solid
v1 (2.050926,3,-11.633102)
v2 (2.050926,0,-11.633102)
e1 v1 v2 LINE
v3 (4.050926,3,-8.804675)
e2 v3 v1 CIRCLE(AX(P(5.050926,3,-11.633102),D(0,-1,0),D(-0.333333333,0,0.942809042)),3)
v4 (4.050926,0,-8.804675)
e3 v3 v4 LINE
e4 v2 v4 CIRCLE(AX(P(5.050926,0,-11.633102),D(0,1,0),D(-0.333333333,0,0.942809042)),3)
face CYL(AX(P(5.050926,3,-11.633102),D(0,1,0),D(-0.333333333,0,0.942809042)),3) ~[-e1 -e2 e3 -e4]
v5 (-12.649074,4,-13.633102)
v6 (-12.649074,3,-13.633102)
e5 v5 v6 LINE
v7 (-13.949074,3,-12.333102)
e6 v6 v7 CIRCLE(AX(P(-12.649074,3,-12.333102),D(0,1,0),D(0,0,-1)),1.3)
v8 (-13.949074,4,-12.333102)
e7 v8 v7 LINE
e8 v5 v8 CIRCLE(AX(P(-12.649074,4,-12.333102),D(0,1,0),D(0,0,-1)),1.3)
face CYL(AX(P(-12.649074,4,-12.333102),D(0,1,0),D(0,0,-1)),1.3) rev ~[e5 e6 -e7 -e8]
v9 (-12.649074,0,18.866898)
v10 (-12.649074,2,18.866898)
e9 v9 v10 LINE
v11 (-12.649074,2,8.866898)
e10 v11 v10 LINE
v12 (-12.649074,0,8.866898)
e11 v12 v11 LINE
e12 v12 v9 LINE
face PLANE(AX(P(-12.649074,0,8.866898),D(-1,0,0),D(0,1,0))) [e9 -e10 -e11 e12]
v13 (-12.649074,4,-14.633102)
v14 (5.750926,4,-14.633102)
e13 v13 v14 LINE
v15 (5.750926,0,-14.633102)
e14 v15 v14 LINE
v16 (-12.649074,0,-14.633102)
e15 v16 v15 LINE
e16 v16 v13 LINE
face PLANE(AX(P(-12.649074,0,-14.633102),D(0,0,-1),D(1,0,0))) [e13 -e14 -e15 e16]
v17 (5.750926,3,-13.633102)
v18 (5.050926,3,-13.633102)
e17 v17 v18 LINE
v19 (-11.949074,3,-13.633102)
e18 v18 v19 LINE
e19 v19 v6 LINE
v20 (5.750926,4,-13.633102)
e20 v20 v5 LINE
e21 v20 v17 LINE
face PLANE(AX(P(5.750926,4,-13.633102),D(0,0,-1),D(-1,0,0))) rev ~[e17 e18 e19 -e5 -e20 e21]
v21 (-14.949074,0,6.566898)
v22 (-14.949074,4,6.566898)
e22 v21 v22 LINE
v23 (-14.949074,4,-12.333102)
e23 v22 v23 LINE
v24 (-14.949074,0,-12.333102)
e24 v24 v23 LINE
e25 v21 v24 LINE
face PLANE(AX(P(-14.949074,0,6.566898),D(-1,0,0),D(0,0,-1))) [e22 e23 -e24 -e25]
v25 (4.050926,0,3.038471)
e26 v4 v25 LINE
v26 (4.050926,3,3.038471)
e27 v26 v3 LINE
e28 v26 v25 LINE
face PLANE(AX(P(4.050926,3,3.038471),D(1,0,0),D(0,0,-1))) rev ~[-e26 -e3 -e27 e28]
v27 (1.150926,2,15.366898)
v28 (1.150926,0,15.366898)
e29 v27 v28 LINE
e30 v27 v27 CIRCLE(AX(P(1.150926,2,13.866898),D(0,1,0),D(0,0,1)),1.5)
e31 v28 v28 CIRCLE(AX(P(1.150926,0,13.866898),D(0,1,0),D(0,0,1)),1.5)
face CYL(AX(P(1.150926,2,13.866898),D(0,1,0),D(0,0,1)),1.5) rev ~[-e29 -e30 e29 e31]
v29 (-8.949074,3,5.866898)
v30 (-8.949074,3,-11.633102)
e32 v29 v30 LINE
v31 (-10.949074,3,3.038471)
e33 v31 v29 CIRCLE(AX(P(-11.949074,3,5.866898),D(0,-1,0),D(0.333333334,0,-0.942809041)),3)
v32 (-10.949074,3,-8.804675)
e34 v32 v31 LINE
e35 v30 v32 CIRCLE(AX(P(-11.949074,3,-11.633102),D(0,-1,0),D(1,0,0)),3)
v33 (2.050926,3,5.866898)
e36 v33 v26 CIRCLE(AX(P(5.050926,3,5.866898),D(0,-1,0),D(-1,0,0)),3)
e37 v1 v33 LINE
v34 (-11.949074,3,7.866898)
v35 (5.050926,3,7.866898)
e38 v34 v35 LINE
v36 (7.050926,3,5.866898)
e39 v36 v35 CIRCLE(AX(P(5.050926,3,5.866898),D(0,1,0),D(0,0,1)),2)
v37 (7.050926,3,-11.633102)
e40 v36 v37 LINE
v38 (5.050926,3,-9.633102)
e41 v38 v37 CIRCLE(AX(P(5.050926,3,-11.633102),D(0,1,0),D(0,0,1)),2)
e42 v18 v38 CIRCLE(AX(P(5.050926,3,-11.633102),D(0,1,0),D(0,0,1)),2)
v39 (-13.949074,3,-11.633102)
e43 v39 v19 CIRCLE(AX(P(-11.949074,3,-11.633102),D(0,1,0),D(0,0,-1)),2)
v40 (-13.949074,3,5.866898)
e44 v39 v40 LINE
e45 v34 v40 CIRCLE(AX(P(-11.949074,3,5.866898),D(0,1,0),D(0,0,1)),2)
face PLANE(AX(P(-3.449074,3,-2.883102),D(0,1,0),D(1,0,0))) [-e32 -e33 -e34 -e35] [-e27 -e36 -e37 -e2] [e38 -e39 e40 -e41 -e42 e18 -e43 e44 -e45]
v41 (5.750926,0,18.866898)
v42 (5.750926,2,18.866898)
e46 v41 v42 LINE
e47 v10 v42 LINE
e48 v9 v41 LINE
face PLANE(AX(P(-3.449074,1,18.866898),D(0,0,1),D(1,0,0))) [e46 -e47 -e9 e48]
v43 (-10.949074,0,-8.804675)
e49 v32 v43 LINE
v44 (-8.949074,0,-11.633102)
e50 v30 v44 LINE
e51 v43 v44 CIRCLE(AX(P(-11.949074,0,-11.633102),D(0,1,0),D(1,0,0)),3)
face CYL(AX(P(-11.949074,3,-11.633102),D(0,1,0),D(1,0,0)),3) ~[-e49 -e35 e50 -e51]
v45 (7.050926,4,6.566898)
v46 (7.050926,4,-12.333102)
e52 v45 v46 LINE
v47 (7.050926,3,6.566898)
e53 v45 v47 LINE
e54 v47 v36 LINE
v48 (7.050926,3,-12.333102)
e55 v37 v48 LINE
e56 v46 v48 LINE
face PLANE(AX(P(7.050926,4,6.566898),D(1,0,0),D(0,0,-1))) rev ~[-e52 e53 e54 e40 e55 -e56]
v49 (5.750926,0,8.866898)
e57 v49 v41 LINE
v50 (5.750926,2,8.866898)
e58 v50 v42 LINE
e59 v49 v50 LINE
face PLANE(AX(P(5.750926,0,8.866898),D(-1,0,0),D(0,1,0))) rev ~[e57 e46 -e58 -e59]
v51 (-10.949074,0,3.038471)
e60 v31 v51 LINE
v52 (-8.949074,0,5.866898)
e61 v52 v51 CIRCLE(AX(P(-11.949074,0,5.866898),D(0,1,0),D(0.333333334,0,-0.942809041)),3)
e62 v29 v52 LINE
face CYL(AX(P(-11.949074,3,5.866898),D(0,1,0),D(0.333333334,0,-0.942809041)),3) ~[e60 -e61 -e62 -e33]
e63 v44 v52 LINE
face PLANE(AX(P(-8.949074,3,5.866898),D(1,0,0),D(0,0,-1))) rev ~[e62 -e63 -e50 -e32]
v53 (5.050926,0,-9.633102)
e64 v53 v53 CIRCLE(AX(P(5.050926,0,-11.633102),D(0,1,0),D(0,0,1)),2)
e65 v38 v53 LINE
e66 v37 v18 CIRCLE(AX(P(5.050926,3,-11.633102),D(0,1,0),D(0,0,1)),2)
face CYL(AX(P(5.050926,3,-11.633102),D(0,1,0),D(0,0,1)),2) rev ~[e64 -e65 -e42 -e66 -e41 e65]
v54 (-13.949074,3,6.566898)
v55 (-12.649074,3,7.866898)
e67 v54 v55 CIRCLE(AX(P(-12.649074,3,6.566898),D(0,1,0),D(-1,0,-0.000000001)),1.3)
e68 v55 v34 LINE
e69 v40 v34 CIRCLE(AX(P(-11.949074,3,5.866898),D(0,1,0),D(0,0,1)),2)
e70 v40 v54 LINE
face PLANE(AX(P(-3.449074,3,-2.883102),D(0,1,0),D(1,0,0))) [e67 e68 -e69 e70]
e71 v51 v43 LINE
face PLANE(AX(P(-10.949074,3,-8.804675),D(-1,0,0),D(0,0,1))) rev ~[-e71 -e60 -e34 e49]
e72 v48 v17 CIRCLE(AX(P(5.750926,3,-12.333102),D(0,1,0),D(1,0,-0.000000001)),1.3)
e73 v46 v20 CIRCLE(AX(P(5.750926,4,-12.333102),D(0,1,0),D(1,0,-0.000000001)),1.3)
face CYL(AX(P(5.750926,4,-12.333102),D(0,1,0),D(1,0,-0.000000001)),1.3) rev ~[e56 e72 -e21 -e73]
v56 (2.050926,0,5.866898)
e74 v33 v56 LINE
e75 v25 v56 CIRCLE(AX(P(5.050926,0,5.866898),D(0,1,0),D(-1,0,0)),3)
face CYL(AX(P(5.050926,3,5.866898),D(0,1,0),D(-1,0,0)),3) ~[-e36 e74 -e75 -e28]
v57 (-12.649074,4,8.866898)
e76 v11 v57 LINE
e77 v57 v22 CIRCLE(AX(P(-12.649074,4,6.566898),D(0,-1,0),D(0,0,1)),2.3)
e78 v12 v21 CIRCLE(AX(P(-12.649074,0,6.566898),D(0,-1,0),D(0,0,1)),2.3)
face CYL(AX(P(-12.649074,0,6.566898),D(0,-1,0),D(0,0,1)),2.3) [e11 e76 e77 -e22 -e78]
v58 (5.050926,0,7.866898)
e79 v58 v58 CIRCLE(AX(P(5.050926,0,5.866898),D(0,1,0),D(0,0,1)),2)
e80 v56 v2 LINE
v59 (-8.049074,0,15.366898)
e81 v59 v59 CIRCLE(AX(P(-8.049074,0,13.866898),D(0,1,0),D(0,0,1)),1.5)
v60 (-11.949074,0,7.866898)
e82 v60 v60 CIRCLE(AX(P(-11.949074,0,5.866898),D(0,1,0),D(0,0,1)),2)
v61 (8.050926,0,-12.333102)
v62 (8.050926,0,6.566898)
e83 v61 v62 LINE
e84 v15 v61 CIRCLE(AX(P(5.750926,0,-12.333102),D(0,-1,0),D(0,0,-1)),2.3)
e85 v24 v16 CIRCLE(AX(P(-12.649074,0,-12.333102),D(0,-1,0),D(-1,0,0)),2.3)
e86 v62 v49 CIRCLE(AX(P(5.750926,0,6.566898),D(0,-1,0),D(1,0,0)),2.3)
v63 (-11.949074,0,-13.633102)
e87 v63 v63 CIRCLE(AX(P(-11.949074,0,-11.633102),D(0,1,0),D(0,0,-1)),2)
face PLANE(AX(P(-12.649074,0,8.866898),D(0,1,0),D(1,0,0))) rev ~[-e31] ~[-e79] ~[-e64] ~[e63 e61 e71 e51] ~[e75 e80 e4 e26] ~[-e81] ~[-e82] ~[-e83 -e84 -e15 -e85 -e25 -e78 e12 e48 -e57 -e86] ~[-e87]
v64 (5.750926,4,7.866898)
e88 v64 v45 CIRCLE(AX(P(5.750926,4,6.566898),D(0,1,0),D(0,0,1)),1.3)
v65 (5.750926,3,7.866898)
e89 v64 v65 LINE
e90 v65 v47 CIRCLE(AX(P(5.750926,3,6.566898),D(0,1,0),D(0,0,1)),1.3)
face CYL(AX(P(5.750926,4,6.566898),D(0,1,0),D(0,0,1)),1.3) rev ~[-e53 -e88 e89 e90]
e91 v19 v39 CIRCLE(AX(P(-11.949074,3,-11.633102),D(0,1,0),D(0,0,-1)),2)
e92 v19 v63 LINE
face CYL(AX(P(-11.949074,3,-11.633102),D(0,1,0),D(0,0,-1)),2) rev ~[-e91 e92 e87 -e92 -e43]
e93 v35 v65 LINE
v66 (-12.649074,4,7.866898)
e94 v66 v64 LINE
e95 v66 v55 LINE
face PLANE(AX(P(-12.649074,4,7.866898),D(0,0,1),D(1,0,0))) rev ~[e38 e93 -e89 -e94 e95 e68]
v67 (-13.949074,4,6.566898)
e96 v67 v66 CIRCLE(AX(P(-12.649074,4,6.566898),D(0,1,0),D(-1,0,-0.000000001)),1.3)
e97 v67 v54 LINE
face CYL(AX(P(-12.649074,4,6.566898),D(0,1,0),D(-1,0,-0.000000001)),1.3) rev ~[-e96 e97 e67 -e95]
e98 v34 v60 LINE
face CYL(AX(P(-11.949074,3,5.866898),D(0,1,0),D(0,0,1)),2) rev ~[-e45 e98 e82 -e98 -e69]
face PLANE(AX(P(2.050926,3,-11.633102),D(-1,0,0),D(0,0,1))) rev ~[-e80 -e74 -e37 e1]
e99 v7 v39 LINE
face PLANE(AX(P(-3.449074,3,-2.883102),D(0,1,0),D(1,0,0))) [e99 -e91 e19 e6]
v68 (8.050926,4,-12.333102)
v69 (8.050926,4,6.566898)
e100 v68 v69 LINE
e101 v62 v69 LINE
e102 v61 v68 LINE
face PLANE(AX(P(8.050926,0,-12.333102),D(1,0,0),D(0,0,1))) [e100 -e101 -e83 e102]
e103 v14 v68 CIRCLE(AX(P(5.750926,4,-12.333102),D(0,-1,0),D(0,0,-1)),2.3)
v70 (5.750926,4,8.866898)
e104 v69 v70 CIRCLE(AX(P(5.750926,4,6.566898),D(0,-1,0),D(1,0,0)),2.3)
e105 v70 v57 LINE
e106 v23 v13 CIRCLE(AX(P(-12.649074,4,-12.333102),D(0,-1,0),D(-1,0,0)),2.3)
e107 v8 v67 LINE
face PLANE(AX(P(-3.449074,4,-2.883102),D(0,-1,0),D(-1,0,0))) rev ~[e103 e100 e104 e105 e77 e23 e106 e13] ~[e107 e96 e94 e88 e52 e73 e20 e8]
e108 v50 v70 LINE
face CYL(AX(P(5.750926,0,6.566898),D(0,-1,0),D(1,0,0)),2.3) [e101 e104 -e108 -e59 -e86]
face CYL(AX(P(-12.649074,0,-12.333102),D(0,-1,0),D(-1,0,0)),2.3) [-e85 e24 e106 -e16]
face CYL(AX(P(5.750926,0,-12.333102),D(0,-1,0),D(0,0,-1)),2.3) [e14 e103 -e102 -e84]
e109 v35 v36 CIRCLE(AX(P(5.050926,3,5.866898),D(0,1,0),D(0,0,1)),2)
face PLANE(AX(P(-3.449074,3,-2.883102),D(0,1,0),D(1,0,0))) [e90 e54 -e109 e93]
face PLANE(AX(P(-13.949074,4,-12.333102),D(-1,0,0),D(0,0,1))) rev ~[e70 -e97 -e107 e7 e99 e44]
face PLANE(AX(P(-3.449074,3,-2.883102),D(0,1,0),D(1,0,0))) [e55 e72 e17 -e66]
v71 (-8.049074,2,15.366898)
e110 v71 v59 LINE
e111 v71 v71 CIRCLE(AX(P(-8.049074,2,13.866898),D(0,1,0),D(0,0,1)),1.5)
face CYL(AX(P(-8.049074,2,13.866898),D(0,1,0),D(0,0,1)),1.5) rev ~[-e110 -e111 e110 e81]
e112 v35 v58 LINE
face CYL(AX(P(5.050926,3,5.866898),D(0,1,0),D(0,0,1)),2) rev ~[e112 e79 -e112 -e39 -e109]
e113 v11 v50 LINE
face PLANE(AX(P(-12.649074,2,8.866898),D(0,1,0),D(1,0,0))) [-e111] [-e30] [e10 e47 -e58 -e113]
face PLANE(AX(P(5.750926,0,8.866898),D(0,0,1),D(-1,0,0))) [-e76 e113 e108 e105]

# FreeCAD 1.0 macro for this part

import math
import FreeCAD as App
import Part
import Sketcher
Q = App.Units.Quantity

doc = App.newDocument("Part")
body = doc.addObject("PartDesign::Body", "Body")

sketch1 = doc.addObject("Sketcher::SketchObject", "Sketch")
body.addObject(sketch1)
sketch1.AttachmentSupport = (doc.XZ_Plane, [""])
sketch1.MapMode = "FlatFace"
sketch1.addGeometry(Part.LineSegment(App.Vector(5.750926, -14.633102, 0), App.Vector(-12.649074, -14.633102, 0)), False)
sketch1.addGeometry(Part.ArcOfCircle(Part.Circle(App.Vector(-12.649074, -12.333102, 0), App.Vector(0, 0, 1), 2.3), math.radians(180), math.radians(270)), False)
sketch1.addGeometry(Part.LineSegment(App.Vector(-14.949074, -12.333102, 0), App.Vector(-14.949074, 6.566898, 0)), False)
sketch1.addGeometry(Part.ArcOfCircle(Part.Circle(App.Vector(-12.649074, 6.566898, 0), App.Vector(0, 0, 1), 2.3), math.radians(90), math.radians(180)), False)
sketch1.addGeometry(Part.LineSegment(App.Vector(-12.649074, 8.866898, 0), App.Vector(5.750926, 8.866898, 0)), False)
sketch1.addGeometry(Part.ArcOfCircle(Part.Circle(App.Vector(5.750926, 6.566898, 0), App.Vector(0, 0, 1), 2.3), math.radians(0), math.radians(90)), False)
sketch1.addGeometry(Part.LineSegment(App.Vector(8.050926, 6.566898, 0), App.Vector(8.050926, -12.333102, 0)), False)
sketch1.addGeometry(Part.ArcOfCircle(Part.Circle(App.Vector(5.750926, -12.333102, 0), App.Vector(0, 0, 1), 2.3), math.radians(-90), math.radians(0)), False)
sketch1.addConstraint(Sketcher.Constraint("Tangent", 0, 2, 1, 2))
sketch1.addConstraint(Sketcher.Constraint("Tangent", 1, 1, 2, 1))
sketch1.addConstraint(Sketcher.Constraint("Tangent", 2, 2, 3, 2))
sketch1.addConstraint(Sketcher.Constraint("Tangent", 3, 1, 4, 1))
sketch1.addConstraint(Sketcher.Constraint("Tangent", 4, 2, 5, 2))
sketch1.addConstraint(Sketcher.Constraint("Tangent", 5, 1, 6, 1))
sketch1.addConstraint(Sketcher.Constraint("Tangent", 6, 2, 7, 2))
sketch1.addConstraint(Sketcher.Constraint("Tangent", 7, 1, 0, 1))
sketch1.addConstraint(Sketcher.Constraint("Horizontal", 0))
sketch1.addConstraint(Sketcher.Constraint("Vertical", 2))
sketch1.addConstraint(Sketcher.Constraint("Horizontal", 4))
sketch1.addConstraint(Sketcher.Constraint("Vertical", 6))
sketch1.addConstraint(Sketcher.Constraint("Equal", 1, 3))
sketch1.addConstraint(Sketcher.Constraint("Equal", 3, 5))
sketch1.addConstraint(Sketcher.Constraint("Equal", 5, 7))
sketch1.addConstraint(Sketcher.Constraint("Radius", 1, Q("2.3 mm")))
sketch1.addConstraint(Sketcher.Constraint("DistanceX", 0, 2, 0, 1, Q("18.4 mm")))
sketch1.addConstraint(Sketcher.Constraint("DistanceY", 2, 1, 2, 2, Q("18.9 mm")))
sketch1.addConstraint(Sketcher.Constraint("DistanceY", 1, 3, -1, 1, Q("12.333102 mm")))
sketch1.addConstraint(Sketcher.Constraint("DistanceX", 1, 3, -1, 1, Q("12.649074 mm")))
pad1 = doc.addObject("PartDesign::Pad", "Pad")
body.addObject(pad1)
pad1.Profile = sketch1
pad1.Length = 4
pad1.Reversed = True

sketch2 = doc.addObject("Sketcher::SketchObject", "Sketch001")
body.addObject(sketch2)
sketch2.AttachmentSupport = (doc.XZ_Plane, [""])
sketch2.MapMode = "FlatFace"
sketch2.AttachmentOffset = App.Placement(App.Vector(0, 0, -4), App.Rotation())
sketch2.addGeometry(Part.LineSegment(App.Vector(5.750926, -13.633102, 0), App.Vector(-12.649074, -13.633102, 0)), False)
sketch2.addGeometry(Part.ArcOfCircle(Part.Circle(App.Vector(-12.649074, -12.333102, 0), App.Vector(0, 0, 1), 1.3), math.radians(180), math.radians(270)), False)
sketch2.addGeometry(Part.LineSegment(App.Vector(-13.949074, -12.333102, 0), App.Vector(-13.949074, 6.566898, 0)), False)
sketch2.addGeometry(Part.ArcOfCircle(Part.Circle(App.Vector(-12.649074, 6.566898, 0), App.Vector(0, 0, 1), 1.3), math.radians(90), math.radians(180)), False)
sketch2.addGeometry(Part.LineSegment(App.Vector(-12.649074, 7.866898, 0), App.Vector(5.750926, 7.866898, 0)), False)
sketch2.addGeometry(Part.ArcOfCircle(Part.Circle(App.Vector(5.750926, 6.566898, 0), App.Vector(0, 0, 1), 1.3), math.radians(0), math.radians(90)), False)
sketch2.addGeometry(Part.LineSegment(App.Vector(7.050926, 6.566898, 0), App.Vector(7.050926, -12.333102, 0)), False)
sketch2.addGeometry(Part.ArcOfCircle(Part.Circle(App.Vector(5.750926, -12.333102, 0), App.Vector(0, 0, 1), 1.3), math.radians(-90), math.radians(0)), False)
sketch2.addConstraint(Sketcher.Constraint("Tangent", 0, 2, 1, 2))
sketch2.addConstraint(Sketcher.Constraint("Tangent", 1, 1, 2, 1))
sketch2.addConstraint(Sketcher.Constraint("Tangent", 2, 2, 3, 2))
sketch2.addConstraint(Sketcher.Constraint("Tangent", 3, 1, 4, 1))
sketch2.addConstraint(Sketcher.Constraint("Tangent", 4, 2, 5, 2))
sketch2.addConstraint(Sketcher.Constraint("Tangent", 5, 1, 6, 1))
sketch2.addConstraint(Sketcher.Constraint("Tangent", 6, 2, 7, 2))
sketch2.addConstraint(Sketcher.Constraint("Tangent", 7, 1, 0, 1))
sketch2.addConstraint(Sketcher.Constraint("Horizontal", 0))
sketch2.addConstraint(Sketcher.Constraint("Vertical", 2))
sketch2.addConstraint(Sketcher.Constraint("Horizontal", 4))
sketch2.addConstraint(Sketcher.Constraint("Vertical", 6))
sketch2.addConstraint(Sketcher.Constraint("Equal", 1, 3))
sketch2.addConstraint(Sketcher.Constraint("Equal", 3, 5))
sketch2.addConstraint(Sketcher.Constraint("Equal", 5, 7))
sketch2.addConstraint(Sketcher.Constraint("Radius", 1, Q("1.3 mm")))
sketch2.addConstraint(Sketcher.Constraint("DistanceX", 0, 2, 0, 1, Q("18.4 mm")))
sketch2.addConstraint(Sketcher.Constraint("DistanceY", 2, 1, 2, 2, Q("18.9 mm")))
sketch2.addConstraint(Sketcher.Constraint("DistanceY", 1, 3, -1, 1, Q("12.333102 mm")))
sketch2.addConstraint(Sketcher.Constraint("DistanceX", 1, 3, -1, 1, Q("12.649074 mm")))
pocket1 = doc.addObject("PartDesign::Pocket", "Pocket")
body.addObject(pocket1)
pocket1.Profile = sketch2
pocket1.Length = 1
pocket1.Reversed = True

sketch3 = doc.addObject("Sketcher::SketchObject", "Sketch002")
body.addObject(sketch3)
sketch3.AttachmentSupport = (doc.XZ_Plane, [""])
sketch3.MapMode = "FlatFace"
sketch3.AttachmentOffset = App.Placement(App.Vector(0, 0, -3), App.Rotation())
sketch3.addGeometry(Part.Circle(App.Vector(5.050926, -11.633102, 0), App.Vector(0, 0, 1), 2), False)
sketch3.addGeometry(Part.Circle(App.Vector(5.050926, 5.866898, 0), App.Vector(0, 0, 1), 2), False)
sketch3.addGeometry(Part.Circle(App.Vector(-11.949074, 5.866898, 0), App.Vector(0, 0, 1), 2), False)
sketch3.addGeometry(Part.Circle(App.Vector(-11.949074, -11.633102, 0), App.Vector(0, 0, 1), 2), False)
sketch3.addConstraint(Sketcher.Constraint("Equal", 0, 1))
sketch3.addConstraint(Sketcher.Constraint("Equal", 1, 2))
sketch3.addConstraint(Sketcher.Constraint("Equal", 2, 3))
sketch3.addConstraint(Sketcher.Constraint("Horizontal", 1, 3, 2, 3))
sketch3.addConstraint(Sketcher.Constraint("Horizontal", 0, 3, 3, 3))
sketch3.addConstraint(Sketcher.Constraint("Vertical", 0, 3, 1, 3))
sketch3.addConstraint(Sketcher.Constraint("Vertical", 2, 3, 3, 3))
sketch3.addConstraint(Sketcher.Constraint("Diameter", 0, Q("4 mm")))
sketch3.addConstraint(Sketcher.Constraint("DistanceX", 2, 3, 1, 3, Q("17 mm")))
sketch3.addConstraint(Sketcher.Constraint("DistanceY", 0, 3, 1, 3, Q("17.5 mm")))
sketch3.addConstraint(Sketcher.Constraint("DistanceY", 0, 3, -1, 1, Q("11.633102 mm")))
sketch3.addConstraint(Sketcher.Constraint("DistanceX", -1, 1, 0, 3, Q("5.050926 mm")))
pocket2 = doc.addObject("PartDesign::Pocket", "Pocket001")
body.addObject(pocket2)
pocket2.Profile = sketch3
pocket2.Type = "ThroughAll"
pocket2.Reversed = True

sketch4 = doc.addObject("Sketcher::SketchObject", "Sketch003")
body.addObject(sketch4)
sketch4.AttachmentSupport = (doc.XZ_Plane, [""])
sketch4.MapMode = "FlatFace"
sketch4.AttachmentOffset = App.Placement(App.Vector(0, 0, -3), App.Rotation())
sketch4.addGeometry(Part.LineSegment(App.Vector(4.050926, 3.038471, 0), App.Vector(4.050926, -8.804675, 0)), False)
sketch4.addGeometry(Part.ArcOfCircle(Part.Circle(App.Vector(5.050926, -11.633102, 0), App.Vector(0, 0, 1), 3), math.radians(109.471221), math.radians(180)), False)
sketch4.addGeometry(Part.LineSegment(App.Vector(2.050926, -11.633102, 0), App.Vector(2.050926, 5.866898, 0)), False)
sketch4.addGeometry(Part.ArcOfCircle(Part.Circle(App.Vector(5.050926, 5.866898, 0), App.Vector(0, 0, 1), 3), math.radians(-180), math.radians(-109.471221)), False)
sketch4.addGeometry(Part.LineSegment(App.Vector(-10.949074, -8.804675, 0), App.Vector(-10.949074, 3.038471, 0)), False)
sketch4.addGeometry(Part.ArcOfCircle(Part.Circle(App.Vector(-11.949074, 5.866898, 0), App.Vector(0, 0, 1), 3), math.radians(-70.528779), math.radians(0)), False)
sketch4.addGeometry(Part.LineSegment(App.Vector(-8.949074, 5.866898, 0), App.Vector(-8.949074, -11.633102, 0)), False)
sketch4.addGeometry(Part.ArcOfCircle(Part.Circle(App.Vector(-11.949074, -11.633102, 0), App.Vector(0, 0, 1), 3), math.radians(0), math.radians(70.528779)), False)
sketch4.addConstraint(Sketcher.Constraint("Coincident", 0, 2, 1, 1))
sketch4.addConstraint(Sketcher.Constraint("Tangent", 1, 2, 2, 1))
sketch4.addConstraint(Sketcher.Constraint("Tangent", 2, 2, 3, 1))
sketch4.addConstraint(Sketcher.Constraint("Coincident", 3, 2, 0, 1))
sketch4.addConstraint(Sketcher.Constraint("Coincident", 4, 2, 5, 1))
sketch4.addConstraint(Sketcher.Constraint("Tangent", 5, 2, 6, 1))
sketch4.addConstraint(Sketcher.Constraint("Tangent", 6, 2, 7, 1))
sketch4.addConstraint(Sketcher.Constraint("Coincident", 7, 2, 4, 1))
sketch4.addConstraint(Sketcher.Constraint("Vertical", 0))
sketch4.addConstraint(Sketcher.Constraint("Vertical", 2))
sketch4.addConstraint(Sketcher.Constraint("Vertical", 4))
sketch4.addConstraint(Sketcher.Constraint("Vertical", 6))
sketch4.addConstraint(Sketcher.Constraint("Equal", 1, 3))
sketch4.addConstraint(Sketcher.Constraint("Equal", 3, 5))
sketch4.addConstraint(Sketcher.Constraint("Equal", 5, 7))
sketch4.addConstraint(Sketcher.Constraint("Horizontal", 3, 3, 5, 3))
sketch4.addConstraint(Sketcher.Constraint("Horizontal", 1, 3, 7, 3))
sketch4.addConstraint(Sketcher.Constraint("Horizontal", 3, 2, 4, 2))
sketch4.addConstraint(Sketcher.Constraint("Radius", 1, Q("3 mm")))
sketch4.addConstraint(Sketcher.Constraint("DistanceY", 2, 1, 2, 2, Q("17.5 mm")))
sketch4.addConstraint(Sketcher.Constraint("DistanceX", 5, 3, 3, 3, Q("17 mm")))
sketch4.addConstraint(Sketcher.Constraint("DistanceX", 0, 2, 1, 3, Q("1 mm")))
sketch4.addConstraint(Sketcher.Constraint("DistanceY", 1, 3, -1, 1, Q("11.633102 mm")))
sketch4.addConstraint(Sketcher.Constraint("DistanceX", -1, 1, 1, 3, Q("5.050926 mm")))
pocket3 = doc.addObject("PartDesign::Pocket", "Pocket002")
body.addObject(pocket3)
pocket3.Profile = sketch4
pocket3.Type = "ThroughAll"
pocket3.Reversed = True

sketch5 = doc.addObject("Sketcher::SketchObject", "Sketch004")
body.addObject(sketch5)
sketch5.AttachmentSupport = (doc.XY_Plane, [""])
sketch5.MapMode = "FlatFace"
sketch5.AttachmentOffset = App.Placement(App.Vector(0, 0, 8.866898), App.Rotation())
sketch5.addGeometry(Part.LineSegment(App.Vector(-12.649074, 2, 0), App.Vector(-12.649074, 0, 0)), False)
sketch5.addGeometry(Part.LineSegment(App.Vector(-12.649074, 0, 0), App.Vector(5.750926, 0, 0)), False)
sketch5.addGeometry(Part.LineSegment(App.Vector(5.750926, 0, 0), App.Vector(5.750926, 2, 0)), False)
sketch5.addGeometry(Part.LineSegment(App.Vector(5.750926, 2, 0), App.Vector(-12.649074, 2, 0)), False)
sketch5.addConstraint(Sketcher.Constraint("Coincident", 0, 2, 1, 1))
sketch5.addConstraint(Sketcher.Constraint("Coincident", 1, 2, 2, 1))
sketch5.addConstraint(Sketcher.Constraint("Coincident", 2, 2, 3, 1))
sketch5.addConstraint(Sketcher.Constraint("Coincident", 3, 2, 0, 1))
sketch5.addConstraint(Sketcher.Constraint("Vertical", 0))
sketch5.addConstraint(Sketcher.Constraint("Horizontal", 1))
sketch5.addConstraint(Sketcher.Constraint("Vertical", 2))
sketch5.addConstraint(Sketcher.Constraint("Horizontal", 3))
sketch5.addConstraint(Sketcher.Constraint("PointOnObject", 0, 2, -1))
sketch5.addConstraint(Sketcher.Constraint("DistanceY", 0, 2, 0, 1, Q("2 mm")))
sketch5.addConstraint(Sketcher.Constraint("DistanceX", 1, 1, 1, 2, Q("18.4 mm")))
sketch5.addConstraint(Sketcher.Constraint("DistanceX", 0, 2, -1, 1, Q("12.649074 mm")))
pad2 = doc.addObject("PartDesign::Pad", "Pad001")
body.addObject(pad2)
pad2.Profile = sketch5
pad2.Length = 10

sketch6 = doc.addObject("Sketcher::SketchObject", "Sketch005")
body.addObject(sketch6)
sketch6.AttachmentSupport = (doc.XZ_Plane, [""])
sketch6.MapMode = "FlatFace"
sketch6.AttachmentOffset = App.Placement(App.Vector(0, 0, -2), App.Rotation())
sketch6.addGeometry(Part.Circle(App.Vector(1.150926, 13.866898, 0), App.Vector(0, 0, 1), 1.5), False)
sketch6.addGeometry(Part.Circle(App.Vector(-8.049074, 13.866898, 0), App.Vector(0, 0, 1), 1.5), False)
sketch6.addConstraint(Sketcher.Constraint("Equal", 0, 1))
sketch6.addConstraint(Sketcher.Constraint("Horizontal", 0, 3, 1, 3))
sketch6.addConstraint(Sketcher.Constraint("Diameter", 0, Q("3 mm")))
sketch6.addConstraint(Sketcher.Constraint("DistanceX", 1, 3, 0, 3, Q("9.2 mm")))
sketch6.addConstraint(Sketcher.Constraint("DistanceY", -1, 1, 0, 3, Q("13.866898 mm")))
sketch6.addConstraint(Sketcher.Constraint("DistanceX", -1, 1, 0, 3, Q("1.150926 mm")))
pocket4 = doc.addObject("PartDesign::Pocket", "Pocket003")
body.addObject(pocket4)
pocket4.Profile = sketch6
pocket4.Type = "ThroughAll"
pocket4.Reversed = True

doc.recompute()
